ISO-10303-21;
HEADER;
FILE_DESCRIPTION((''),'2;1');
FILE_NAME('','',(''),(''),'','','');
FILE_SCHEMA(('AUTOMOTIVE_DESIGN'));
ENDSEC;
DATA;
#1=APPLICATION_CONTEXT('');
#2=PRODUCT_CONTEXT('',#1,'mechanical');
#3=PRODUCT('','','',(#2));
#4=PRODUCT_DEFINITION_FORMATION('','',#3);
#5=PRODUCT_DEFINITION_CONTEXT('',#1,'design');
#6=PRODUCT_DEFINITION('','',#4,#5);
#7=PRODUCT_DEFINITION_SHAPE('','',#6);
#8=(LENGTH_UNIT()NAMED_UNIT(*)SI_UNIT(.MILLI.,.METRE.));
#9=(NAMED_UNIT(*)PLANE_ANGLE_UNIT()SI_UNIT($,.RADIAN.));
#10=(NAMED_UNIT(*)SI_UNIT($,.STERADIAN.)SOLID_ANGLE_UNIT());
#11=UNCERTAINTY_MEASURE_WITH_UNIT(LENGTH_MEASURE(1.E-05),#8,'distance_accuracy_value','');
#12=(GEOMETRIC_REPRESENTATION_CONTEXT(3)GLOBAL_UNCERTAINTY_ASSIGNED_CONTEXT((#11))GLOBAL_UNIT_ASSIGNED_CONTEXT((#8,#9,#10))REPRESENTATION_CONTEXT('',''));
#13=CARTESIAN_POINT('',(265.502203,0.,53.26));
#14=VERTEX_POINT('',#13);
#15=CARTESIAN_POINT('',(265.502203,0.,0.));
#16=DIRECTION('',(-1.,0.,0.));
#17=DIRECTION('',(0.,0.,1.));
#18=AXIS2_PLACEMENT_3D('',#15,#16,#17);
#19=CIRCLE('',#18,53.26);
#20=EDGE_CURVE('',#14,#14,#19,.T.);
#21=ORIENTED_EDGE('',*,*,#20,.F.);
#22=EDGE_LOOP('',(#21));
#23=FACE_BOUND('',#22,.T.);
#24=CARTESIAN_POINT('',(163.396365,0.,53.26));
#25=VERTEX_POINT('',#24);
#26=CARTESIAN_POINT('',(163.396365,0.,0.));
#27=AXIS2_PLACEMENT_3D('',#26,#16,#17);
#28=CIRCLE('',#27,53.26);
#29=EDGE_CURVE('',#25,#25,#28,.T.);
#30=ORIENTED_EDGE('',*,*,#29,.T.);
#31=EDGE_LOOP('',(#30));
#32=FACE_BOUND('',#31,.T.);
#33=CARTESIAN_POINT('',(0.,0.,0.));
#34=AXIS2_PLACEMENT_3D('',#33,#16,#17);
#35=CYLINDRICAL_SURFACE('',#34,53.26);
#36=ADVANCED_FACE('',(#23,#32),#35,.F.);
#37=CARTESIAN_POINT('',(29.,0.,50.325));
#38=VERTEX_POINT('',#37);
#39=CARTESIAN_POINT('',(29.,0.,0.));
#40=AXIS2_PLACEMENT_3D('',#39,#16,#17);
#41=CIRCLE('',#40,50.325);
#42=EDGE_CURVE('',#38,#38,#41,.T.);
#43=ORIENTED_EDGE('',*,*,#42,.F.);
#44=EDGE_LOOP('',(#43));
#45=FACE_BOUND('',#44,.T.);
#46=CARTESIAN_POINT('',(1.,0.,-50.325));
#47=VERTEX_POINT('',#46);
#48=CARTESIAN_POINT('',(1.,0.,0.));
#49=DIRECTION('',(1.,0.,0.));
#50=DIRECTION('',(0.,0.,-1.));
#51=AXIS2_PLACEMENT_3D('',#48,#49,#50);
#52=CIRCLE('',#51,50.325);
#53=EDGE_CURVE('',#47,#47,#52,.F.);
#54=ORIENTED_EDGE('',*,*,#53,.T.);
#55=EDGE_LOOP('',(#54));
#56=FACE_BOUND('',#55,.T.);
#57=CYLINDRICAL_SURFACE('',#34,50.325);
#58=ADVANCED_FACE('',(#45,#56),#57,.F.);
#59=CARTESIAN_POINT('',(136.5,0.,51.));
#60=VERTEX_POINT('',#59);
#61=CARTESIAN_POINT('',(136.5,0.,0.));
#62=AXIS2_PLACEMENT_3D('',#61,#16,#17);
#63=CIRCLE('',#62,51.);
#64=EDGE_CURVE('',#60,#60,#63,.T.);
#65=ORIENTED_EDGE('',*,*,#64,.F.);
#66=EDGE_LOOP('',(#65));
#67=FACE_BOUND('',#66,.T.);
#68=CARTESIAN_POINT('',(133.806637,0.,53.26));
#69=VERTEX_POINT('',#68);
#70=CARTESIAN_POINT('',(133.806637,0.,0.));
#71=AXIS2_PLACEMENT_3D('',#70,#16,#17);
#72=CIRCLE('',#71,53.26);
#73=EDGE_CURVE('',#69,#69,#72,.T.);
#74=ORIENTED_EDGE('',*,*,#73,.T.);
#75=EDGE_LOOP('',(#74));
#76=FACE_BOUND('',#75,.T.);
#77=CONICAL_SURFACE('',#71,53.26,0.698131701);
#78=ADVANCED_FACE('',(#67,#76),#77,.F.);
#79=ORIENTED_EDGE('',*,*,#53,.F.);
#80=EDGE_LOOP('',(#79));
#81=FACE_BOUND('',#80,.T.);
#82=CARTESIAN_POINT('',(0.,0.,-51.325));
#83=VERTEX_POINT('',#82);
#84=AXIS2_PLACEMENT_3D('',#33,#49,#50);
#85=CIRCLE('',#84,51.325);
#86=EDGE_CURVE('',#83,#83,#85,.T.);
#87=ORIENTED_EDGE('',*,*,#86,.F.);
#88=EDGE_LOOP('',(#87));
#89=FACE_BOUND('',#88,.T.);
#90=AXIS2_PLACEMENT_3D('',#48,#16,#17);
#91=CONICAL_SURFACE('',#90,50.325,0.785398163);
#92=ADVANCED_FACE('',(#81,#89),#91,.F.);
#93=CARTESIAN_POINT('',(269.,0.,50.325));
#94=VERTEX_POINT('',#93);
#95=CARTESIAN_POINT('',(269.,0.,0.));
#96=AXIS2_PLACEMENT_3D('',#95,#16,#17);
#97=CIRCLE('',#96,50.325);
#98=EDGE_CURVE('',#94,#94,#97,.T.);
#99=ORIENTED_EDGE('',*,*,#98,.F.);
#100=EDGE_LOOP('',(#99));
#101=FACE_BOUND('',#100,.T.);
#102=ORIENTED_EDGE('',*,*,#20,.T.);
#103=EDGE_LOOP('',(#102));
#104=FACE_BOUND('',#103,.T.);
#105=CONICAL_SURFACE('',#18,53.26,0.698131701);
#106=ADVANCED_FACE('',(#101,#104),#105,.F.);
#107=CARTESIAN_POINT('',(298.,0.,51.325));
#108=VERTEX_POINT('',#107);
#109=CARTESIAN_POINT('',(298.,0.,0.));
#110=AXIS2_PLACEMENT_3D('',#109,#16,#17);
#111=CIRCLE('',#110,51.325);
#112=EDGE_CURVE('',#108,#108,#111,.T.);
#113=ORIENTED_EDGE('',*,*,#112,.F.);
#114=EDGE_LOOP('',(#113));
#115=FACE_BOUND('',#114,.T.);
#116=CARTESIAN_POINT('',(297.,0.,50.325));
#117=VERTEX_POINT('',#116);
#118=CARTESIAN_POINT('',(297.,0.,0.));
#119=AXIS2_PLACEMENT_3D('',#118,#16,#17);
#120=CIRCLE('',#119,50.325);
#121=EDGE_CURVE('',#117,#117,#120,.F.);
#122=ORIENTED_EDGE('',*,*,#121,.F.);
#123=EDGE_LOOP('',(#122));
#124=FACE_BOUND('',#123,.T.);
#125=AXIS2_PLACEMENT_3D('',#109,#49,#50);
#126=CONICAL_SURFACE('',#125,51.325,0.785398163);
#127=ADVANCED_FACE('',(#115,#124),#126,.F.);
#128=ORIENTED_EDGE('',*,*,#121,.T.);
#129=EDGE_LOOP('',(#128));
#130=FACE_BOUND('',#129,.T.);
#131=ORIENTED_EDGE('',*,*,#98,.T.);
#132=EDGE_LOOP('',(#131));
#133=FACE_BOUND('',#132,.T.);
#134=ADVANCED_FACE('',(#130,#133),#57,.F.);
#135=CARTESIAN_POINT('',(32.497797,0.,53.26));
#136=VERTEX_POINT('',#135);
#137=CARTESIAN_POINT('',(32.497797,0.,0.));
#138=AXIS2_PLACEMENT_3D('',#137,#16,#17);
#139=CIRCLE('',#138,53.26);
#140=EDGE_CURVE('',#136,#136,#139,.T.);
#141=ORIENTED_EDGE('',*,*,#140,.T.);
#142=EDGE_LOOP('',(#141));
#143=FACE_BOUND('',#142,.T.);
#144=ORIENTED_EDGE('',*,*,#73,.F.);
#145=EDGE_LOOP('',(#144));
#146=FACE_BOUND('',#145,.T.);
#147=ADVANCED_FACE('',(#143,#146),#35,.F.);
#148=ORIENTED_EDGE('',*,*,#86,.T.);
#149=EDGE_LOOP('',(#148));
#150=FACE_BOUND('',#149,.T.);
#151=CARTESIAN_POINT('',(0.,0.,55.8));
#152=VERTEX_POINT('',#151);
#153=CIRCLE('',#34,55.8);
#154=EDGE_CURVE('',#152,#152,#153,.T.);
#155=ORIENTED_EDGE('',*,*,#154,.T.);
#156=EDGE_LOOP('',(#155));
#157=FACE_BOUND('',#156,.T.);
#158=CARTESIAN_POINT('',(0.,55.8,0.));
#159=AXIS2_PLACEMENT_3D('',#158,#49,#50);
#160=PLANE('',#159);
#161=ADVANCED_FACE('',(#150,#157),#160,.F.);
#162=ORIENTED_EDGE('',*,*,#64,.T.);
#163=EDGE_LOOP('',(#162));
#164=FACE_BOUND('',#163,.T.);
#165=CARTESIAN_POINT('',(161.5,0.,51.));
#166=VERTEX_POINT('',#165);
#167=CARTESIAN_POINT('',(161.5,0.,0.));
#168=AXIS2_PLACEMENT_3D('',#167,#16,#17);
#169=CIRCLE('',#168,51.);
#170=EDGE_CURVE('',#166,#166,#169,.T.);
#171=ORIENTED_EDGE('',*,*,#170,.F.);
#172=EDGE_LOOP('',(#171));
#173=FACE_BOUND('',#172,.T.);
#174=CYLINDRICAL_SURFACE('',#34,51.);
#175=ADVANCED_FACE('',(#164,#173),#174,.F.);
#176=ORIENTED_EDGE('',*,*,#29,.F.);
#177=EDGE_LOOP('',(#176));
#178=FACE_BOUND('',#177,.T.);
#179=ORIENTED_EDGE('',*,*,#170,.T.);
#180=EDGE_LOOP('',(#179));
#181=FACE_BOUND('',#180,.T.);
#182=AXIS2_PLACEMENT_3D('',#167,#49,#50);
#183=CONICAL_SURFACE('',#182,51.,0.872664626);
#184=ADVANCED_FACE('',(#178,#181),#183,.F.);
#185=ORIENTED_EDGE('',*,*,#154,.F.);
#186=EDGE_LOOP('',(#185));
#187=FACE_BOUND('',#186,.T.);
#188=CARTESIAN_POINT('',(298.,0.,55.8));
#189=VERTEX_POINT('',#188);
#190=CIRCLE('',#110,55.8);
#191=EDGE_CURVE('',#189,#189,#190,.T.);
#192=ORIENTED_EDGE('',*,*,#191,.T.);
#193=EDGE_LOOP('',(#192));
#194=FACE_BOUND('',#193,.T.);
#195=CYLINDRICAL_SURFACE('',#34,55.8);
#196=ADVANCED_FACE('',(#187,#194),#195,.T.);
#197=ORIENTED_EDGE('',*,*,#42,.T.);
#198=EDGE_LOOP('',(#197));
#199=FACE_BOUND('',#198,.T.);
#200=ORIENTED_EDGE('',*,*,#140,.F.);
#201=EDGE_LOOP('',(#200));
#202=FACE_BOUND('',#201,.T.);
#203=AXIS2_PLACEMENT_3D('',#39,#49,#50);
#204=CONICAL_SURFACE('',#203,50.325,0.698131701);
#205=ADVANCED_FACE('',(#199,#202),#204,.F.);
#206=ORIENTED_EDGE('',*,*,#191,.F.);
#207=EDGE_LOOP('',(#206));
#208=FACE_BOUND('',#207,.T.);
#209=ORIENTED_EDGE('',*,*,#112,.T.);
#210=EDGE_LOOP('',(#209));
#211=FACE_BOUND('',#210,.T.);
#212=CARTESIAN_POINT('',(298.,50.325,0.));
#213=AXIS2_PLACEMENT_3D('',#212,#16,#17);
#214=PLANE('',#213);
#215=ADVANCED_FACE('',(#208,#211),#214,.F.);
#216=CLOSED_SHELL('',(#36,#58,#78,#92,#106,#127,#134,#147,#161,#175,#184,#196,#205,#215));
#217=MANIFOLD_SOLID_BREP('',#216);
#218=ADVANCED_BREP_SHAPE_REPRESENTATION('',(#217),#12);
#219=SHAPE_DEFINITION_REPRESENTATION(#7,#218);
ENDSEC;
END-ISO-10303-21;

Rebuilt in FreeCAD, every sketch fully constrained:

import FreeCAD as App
import Part
import Sketcher
from FreeCAD import Vector
Q = App.Units.Quantity


def edges_at(feature, points):
    """Names of the edges that pass closest to the given points."""
    edges = feature.Shape.Edges
    near = lambda p: min(range(len(edges)), key=lambda i: edges[i].distToShape(Part.Vertex(*p))[0])
    return sorted({f"Edge{near(p) + 1}" for p in points})


def add_polygon(sketch, points):
    """Adds a closed chain of lines whose ends are joined by coincident constraints."""
    first, n = sketch.GeometryCount, len(points)
    for a, b in zip(points, points[1:] + points[:1]):
        sketch.addGeometry(Part.LineSegment(App.Vector(*a, 0), App.Vector(*b, 0)), False)
    for i in range(n):
        sketch.addConstraint(Sketcher.Constraint("Coincident", first + i, 2, first + (i + 1) % n, 1))

doc = App.newDocument("Part")
body = doc.addObject("PartDesign::Body", "Body")

sketch1 = body.newObject("Sketcher::SketchObject", "Sketch")
sketch1.AttachmentSupport = (doc.getObject("XY_Plane"), [""])
sketch1.MapMode = "FlatFace"
add_polygon(sketch1, [(298, 55.8), (0, 55.8), (0, 50.3), (29, 50.3), (32.5, 53.3), (133.8, 53.3), (136.5, 51), (161.5, 51), (163.4, 53.3), (265.5, 53.3), (269, 50.3), (298, 50.3)])
sketch1.addConstraint(Sketcher.Constraint("Horizontal", 0))
sketch1.addConstraint(Sketcher.Constraint("Vertical", 1))
sketch1.addConstraint(Sketcher.Constraint("Horizontal", 2))
sketch1.addConstraint(Sketcher.Constraint("Horizontal", 4))
sketch1.addConstraint(Sketcher.Constraint("Horizontal", 6))
sketch1.addConstraint(Sketcher.Constraint("Horizontal", 8))
sketch1.addConstraint(Sketcher.Constraint("Horizontal", 10))
sketch1.addConstraint(Sketcher.Constraint("Vertical", 11))
sketch1.addConstraint(Sketcher.Constraint("PointOnObject", 0, 2, -2))
sketch1.addConstraint(Sketcher.Constraint("Perpendicular", 5, 7))
sketch1.addConstraint(Sketcher.Constraint("Perpendicular", 7, 9))
sketch1.addConstraint(Sketcher.Constraint("Horizontal", 4, 2, 7, 2))
sketch1.addConstraint(Sketcher.Constraint("Horizontal", 2, 2, 9, 2))
sketch1.addConstraint(Sketcher.Constraint("Equal", 2, 10))
sketch1.addConstraint(Sketcher.Constraint("Equal", 3, 9))
sketch1.addConstraint(Sketcher.Constraint("DistanceX", 0, 2, 0, 1, Q("298 mm")))
sketch1.addConstraint(Sketcher.Constraint("DistanceX", 2, 1, 2, 2, Q("29 mm")))
sketch1.addConstraint(Sketcher.Constraint("DistanceX", 6, 1, 6, 2, Q("25 mm")))
sketch1.addConstraint(Sketcher.Constraint("Angle", 3, Q("40 deg")))
sketch1.addConstraint(Sketcher.Constraint("DistanceY", -1, 1, 5, 2, Q("51 mm")))
sketch1.addConstraint(Sketcher.Constraint("DistanceY", -1, 1, 0, 2, Q("55.8 mm")))
sketch1.addConstraint(Sketcher.Constraint("DistanceX", -1, 1, 5, 2, Q("136.5 mm")))
sketch1.addConstraint(Sketcher.Constraint("DistanceY", 1, 2, 1, 1, Q("5.475 mm")))
sketch1.addConstraint(Sketcher.Constraint("DistanceY", -1, 1, 3, 2, Q("53.26 mm")))
revolution = body.newObject("PartDesign::Revolution", "Revolution")
revolution.Profile = sketch1
revolution.ReferenceAxis = (sketch1, ["H_Axis"])
revolution.Angle = 360
doc.recompute()

chamfer = body.newObject("PartDesign::Chamfer", "Chamfer")
chamfer.Base = (revolution, edges_at(revolution, [(0, 0, -50.325), (298, 0, -50.325)]))
chamfer.Size = 1

doc.recompute()
